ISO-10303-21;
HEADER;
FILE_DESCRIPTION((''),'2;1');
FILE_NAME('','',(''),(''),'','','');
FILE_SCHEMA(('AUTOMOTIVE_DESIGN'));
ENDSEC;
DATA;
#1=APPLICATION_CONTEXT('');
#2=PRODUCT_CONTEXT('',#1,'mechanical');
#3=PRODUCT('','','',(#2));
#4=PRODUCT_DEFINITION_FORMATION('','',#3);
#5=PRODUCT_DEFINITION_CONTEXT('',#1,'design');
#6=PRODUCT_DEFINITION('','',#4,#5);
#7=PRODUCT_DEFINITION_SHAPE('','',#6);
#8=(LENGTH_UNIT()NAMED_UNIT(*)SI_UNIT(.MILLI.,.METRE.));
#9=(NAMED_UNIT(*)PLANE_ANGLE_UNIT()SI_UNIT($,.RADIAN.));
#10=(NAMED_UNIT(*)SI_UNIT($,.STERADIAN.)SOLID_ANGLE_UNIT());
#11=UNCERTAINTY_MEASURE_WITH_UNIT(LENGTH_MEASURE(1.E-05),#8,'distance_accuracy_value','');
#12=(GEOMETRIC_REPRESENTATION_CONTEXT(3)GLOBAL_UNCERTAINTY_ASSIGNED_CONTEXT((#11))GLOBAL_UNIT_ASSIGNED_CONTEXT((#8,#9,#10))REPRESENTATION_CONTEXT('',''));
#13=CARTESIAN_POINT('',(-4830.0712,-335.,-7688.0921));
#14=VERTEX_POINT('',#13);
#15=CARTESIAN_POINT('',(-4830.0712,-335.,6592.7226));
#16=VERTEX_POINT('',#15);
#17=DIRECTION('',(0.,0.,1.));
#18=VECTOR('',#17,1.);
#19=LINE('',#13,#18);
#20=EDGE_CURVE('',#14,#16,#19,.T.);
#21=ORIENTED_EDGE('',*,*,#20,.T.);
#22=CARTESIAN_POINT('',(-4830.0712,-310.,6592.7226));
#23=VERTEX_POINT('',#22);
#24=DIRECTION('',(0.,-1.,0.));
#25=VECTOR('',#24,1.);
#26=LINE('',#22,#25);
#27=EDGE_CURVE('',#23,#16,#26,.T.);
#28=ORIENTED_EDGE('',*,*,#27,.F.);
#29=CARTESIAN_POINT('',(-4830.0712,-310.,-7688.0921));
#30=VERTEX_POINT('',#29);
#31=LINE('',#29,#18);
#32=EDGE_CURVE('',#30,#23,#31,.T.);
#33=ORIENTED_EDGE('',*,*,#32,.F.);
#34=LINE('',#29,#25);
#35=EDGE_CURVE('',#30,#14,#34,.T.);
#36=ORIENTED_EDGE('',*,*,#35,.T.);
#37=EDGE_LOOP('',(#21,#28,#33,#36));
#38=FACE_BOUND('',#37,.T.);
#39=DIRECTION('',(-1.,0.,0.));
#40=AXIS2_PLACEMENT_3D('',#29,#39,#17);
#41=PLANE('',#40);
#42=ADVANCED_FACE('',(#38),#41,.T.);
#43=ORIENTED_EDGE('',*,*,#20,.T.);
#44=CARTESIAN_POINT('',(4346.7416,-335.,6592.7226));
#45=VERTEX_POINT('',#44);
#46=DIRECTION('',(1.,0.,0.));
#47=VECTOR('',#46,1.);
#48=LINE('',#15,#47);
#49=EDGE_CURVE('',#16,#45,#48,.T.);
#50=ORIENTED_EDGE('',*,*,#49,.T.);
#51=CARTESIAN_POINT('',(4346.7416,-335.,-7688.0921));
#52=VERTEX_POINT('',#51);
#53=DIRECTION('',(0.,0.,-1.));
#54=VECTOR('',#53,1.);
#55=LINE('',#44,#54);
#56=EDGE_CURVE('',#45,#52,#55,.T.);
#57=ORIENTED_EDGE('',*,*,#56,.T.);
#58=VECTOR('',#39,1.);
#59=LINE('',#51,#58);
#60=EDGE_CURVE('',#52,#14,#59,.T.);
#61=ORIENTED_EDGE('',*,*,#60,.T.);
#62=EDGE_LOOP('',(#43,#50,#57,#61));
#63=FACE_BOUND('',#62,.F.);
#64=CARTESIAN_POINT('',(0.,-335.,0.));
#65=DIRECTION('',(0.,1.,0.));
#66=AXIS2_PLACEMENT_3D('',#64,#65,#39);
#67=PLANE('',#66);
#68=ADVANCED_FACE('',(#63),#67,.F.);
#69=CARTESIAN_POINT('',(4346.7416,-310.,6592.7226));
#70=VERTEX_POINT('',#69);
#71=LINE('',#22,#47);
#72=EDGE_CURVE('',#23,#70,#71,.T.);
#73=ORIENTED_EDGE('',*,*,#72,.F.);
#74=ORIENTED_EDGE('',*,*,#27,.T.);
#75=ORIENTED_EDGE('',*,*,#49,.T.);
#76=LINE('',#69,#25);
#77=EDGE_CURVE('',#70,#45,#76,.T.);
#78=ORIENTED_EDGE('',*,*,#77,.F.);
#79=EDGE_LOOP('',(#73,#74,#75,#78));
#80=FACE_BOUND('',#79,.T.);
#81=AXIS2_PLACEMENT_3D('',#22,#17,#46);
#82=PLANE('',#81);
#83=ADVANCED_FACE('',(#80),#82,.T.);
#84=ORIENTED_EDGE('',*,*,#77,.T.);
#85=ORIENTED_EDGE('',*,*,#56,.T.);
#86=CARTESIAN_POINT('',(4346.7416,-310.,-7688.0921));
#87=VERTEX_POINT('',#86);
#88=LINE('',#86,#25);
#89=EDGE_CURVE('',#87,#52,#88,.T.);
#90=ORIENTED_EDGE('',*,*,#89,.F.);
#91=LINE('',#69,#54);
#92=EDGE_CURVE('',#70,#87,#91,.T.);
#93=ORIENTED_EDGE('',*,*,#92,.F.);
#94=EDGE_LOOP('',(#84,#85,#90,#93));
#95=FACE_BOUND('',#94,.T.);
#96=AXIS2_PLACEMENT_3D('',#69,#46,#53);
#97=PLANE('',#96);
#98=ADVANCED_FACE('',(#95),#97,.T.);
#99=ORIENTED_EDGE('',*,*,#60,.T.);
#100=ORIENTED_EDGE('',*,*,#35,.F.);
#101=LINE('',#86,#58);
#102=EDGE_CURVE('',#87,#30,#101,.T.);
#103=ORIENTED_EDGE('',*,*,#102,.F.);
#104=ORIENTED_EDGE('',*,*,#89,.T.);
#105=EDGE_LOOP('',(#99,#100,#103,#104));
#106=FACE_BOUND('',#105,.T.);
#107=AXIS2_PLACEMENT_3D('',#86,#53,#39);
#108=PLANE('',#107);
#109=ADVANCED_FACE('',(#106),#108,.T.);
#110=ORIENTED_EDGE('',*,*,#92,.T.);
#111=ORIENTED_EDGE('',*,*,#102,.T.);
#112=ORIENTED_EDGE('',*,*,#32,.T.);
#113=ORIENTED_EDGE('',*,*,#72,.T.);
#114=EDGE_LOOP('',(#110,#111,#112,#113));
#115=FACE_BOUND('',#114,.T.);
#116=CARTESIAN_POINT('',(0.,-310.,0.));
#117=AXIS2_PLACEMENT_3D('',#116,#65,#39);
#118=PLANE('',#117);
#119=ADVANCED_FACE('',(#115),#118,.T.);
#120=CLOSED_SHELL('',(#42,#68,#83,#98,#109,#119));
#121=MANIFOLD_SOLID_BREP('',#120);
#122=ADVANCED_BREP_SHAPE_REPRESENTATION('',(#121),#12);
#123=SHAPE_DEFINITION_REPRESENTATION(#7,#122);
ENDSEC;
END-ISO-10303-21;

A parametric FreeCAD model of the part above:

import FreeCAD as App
import Part
import Sketcher
Q = App.Units.Quantity

doc = App.newDocument("Part")
body = doc.addObject("PartDesign::Body", "Body")

sketch1 = body.newObject("Sketcher::SketchObject", "Sketch")
sketch1.AttachmentSupport = (doc.getObject("XZ_Plane"), [""])
sketch1.MapMode = "FlatFace"
sketch1.AttachmentOffset = App.Placement(App.Vector(0, 0, 310), App.Rotation())
sketch1.addGeometry([
    Part.LineSegment(App.Vector(-4830, -7688, 0), App.Vector(-4830, 6593, 0)),
    Part.LineSegment(App.Vector(-4830, 6593, 0), App.Vector(4347, 6593, 0)),
    Part.LineSegment(App.Vector(4347, 6593, 0), App.Vector(4347, -7688, 0)),
    Part.LineSegment(App.Vector(4347, -7688, 0), App.Vector(-4830, -7688, 0)),
], False)
sketch1.addConstraint([
    Sketcher.Constraint("Coincident", 0, 2, 1, 1),
    Sketcher.Constraint("Coincident", 1, 2, 2, 1),
    Sketcher.Constraint("Coincident", 2, 2, 3, 1),
    Sketcher.Constraint("Coincident", 3, 2, 0, 1),
    Sketcher.Constraint("Vertical", 0),
    Sketcher.Constraint("Horizontal", 1),
    Sketcher.Constraint("Vertical", 2),
    Sketcher.Constraint("Horizontal", 3),
    Sketcher.Constraint("DistanceX", 1, 1, 1, 2, Q("9176.8128 mm")),
    Sketcher.Constraint("DistanceY", 0, 1, 0, 2, Q("14280.8147 mm")),
    Sketcher.Constraint("DistanceY", 2, 2, -1, 1, Q("7688.092 mm")),
    Sketcher.Constraint("DistanceX", 0, 2, -1, 1, Q("4830.0712 mm")),
])
pad1 = body.newObject("PartDesign::Pad", "Pad")
pad1.Profile = sketch1
pad1.Length = 25

doc.recompute()
